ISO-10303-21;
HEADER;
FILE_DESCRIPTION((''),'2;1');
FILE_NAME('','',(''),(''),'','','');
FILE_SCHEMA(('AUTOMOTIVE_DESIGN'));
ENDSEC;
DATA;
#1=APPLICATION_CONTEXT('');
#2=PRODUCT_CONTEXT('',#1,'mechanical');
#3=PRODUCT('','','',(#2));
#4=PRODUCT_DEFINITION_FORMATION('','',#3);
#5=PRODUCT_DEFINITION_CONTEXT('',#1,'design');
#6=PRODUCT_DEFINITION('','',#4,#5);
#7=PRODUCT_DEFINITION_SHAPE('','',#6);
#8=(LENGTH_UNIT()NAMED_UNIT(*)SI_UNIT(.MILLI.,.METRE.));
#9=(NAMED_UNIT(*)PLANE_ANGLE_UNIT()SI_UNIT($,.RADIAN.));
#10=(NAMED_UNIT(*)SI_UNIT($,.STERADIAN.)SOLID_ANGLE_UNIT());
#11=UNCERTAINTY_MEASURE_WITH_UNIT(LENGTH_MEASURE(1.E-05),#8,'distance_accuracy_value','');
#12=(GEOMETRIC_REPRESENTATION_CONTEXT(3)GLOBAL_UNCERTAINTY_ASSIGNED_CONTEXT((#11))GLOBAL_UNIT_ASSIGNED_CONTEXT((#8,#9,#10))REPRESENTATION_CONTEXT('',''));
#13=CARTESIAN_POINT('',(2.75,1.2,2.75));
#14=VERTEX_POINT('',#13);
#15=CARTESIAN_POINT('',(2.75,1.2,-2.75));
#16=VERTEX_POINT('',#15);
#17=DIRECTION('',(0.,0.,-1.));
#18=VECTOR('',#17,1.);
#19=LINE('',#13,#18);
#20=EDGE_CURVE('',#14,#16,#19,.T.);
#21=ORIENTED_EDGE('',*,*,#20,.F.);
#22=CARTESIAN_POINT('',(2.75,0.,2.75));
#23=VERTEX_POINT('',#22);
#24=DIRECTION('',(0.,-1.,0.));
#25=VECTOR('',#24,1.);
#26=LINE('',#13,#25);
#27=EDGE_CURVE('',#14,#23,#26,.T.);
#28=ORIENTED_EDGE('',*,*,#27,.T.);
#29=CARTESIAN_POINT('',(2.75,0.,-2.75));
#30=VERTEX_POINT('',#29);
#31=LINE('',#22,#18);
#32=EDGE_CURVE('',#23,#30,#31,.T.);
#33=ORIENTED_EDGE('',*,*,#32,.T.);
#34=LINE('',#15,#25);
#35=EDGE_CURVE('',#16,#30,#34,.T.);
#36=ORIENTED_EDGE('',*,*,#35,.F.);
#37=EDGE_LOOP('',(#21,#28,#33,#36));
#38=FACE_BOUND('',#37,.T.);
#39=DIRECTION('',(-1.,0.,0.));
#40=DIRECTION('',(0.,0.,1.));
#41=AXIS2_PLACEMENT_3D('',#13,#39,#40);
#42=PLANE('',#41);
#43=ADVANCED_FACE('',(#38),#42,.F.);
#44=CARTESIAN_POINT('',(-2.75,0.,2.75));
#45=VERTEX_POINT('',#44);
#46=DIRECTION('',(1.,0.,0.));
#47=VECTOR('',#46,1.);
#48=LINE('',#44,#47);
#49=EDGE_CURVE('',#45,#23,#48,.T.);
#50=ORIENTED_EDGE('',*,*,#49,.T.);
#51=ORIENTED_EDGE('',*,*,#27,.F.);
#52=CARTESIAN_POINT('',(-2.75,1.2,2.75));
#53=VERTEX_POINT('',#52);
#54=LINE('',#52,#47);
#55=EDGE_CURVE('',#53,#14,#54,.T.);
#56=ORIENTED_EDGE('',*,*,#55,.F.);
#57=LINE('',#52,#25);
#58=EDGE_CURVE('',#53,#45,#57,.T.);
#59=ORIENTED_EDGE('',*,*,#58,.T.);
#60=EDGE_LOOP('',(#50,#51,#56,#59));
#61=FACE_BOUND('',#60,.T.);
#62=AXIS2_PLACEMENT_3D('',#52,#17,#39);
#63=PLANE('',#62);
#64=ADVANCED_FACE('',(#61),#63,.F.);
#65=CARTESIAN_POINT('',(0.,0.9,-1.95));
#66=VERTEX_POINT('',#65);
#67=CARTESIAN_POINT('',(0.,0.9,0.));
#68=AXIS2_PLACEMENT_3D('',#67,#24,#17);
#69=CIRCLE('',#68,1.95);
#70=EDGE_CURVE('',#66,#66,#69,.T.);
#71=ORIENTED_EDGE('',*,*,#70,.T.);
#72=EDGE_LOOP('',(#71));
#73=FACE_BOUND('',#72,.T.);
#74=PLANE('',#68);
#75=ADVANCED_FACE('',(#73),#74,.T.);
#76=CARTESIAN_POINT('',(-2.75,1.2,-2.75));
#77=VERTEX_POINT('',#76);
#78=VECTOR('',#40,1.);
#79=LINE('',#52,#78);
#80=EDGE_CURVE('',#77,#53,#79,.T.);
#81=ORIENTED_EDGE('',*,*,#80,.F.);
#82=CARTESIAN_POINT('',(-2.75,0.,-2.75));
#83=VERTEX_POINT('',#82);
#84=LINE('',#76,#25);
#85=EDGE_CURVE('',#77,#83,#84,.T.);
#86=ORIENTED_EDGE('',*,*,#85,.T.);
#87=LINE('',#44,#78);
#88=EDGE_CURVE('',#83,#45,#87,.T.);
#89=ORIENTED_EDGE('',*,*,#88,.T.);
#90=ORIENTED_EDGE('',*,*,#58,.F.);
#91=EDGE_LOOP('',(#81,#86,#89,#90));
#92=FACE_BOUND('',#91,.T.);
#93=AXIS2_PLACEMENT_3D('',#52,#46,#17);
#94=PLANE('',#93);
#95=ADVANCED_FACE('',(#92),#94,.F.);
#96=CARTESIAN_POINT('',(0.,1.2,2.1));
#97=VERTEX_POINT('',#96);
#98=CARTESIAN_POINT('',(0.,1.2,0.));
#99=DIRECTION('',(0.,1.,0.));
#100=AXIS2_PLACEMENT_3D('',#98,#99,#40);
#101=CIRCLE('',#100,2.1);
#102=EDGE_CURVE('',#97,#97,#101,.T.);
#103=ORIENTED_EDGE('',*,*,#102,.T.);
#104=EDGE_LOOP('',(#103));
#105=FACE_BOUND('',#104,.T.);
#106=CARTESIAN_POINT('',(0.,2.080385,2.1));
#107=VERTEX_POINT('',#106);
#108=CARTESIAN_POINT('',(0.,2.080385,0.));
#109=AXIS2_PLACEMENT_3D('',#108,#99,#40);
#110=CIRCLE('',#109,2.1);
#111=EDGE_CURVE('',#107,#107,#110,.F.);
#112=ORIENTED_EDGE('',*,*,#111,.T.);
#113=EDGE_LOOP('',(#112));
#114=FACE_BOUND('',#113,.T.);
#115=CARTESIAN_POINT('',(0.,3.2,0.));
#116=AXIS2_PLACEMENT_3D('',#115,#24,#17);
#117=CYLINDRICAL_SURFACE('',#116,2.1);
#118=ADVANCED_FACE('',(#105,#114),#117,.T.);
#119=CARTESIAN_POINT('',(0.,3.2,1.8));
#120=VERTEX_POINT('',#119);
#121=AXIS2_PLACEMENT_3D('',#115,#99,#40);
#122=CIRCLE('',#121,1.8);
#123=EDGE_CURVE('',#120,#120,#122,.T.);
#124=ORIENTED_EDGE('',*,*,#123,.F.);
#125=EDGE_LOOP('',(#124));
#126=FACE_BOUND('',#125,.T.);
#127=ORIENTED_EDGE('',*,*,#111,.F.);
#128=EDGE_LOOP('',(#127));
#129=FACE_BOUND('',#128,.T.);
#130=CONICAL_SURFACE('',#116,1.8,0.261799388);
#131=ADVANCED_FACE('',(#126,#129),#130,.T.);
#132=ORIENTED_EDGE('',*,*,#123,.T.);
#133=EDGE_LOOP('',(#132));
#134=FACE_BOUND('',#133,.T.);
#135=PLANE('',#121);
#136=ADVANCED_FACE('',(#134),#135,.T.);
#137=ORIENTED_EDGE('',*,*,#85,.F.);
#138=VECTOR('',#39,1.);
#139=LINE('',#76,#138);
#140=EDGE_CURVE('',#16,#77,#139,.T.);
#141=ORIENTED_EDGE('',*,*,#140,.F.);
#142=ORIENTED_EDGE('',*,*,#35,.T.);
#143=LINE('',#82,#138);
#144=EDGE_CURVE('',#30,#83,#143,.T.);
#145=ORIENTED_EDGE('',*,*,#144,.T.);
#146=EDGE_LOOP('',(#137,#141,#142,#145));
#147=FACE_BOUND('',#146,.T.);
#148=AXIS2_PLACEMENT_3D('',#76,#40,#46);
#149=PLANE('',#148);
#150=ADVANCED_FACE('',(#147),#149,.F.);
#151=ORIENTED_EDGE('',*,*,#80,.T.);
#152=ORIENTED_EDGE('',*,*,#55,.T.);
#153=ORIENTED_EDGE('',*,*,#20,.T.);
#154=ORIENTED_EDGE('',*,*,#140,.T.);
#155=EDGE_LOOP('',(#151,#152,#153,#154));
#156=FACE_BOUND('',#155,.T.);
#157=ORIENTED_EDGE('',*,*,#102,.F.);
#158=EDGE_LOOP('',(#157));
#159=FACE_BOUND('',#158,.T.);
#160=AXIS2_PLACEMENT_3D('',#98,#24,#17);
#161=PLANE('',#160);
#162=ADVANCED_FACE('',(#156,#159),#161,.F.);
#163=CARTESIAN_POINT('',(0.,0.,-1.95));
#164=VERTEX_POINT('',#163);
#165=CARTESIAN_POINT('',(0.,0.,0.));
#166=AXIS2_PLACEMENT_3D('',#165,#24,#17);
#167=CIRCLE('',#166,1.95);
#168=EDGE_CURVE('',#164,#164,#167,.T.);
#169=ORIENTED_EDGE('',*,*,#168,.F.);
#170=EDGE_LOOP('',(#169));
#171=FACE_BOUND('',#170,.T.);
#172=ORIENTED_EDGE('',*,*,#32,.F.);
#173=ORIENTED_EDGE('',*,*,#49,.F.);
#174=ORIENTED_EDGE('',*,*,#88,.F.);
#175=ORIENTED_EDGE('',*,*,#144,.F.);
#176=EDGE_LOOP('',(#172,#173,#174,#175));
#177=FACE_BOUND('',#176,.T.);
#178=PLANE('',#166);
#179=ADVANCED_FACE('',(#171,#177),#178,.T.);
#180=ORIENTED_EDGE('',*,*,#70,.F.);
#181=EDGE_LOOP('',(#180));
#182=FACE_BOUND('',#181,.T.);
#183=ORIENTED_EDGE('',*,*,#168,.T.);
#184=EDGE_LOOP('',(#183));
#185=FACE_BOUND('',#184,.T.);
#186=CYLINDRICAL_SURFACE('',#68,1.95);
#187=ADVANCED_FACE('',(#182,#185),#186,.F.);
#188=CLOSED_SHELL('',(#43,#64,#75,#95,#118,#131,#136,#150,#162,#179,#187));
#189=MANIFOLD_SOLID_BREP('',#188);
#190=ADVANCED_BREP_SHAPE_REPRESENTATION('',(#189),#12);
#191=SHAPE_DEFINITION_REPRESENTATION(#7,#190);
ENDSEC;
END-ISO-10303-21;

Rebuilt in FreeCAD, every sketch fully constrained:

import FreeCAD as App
import Part
import Sketcher
from FreeCAD import Vector
Q = App.Units.Quantity


def edges_at(feature, points):
    """Names of the edges that pass closest to the given points."""
    edges = feature.Shape.Edges
    near = lambda p: min(range(len(edges)), key=lambda i: edges[i].distToShape(Part.Vertex(*p))[0])
    return sorted({f"Edge{near(p) + 1}" for p in points})

doc = App.newDocument("Part")
body = doc.addObject("PartDesign::Body", "Body")

sketch1 = doc.addObject("Sketcher::SketchObject", "Sketch")
body.addObject(sketch1)
sketch1.AttachmentSupport = (doc.XZ_Plane, [""])
sketch1.MapMode = "FlatFace"
sketch1.addGeometry([
    Part.LineSegment(Vector(-3, -3, 0), Vector(-3, 3, 0)),
    Part.LineSegment(Vector(-3, 3, 0), Vector(3, 3, 0)),
    Part.LineSegment(Vector(3, 3, 0), Vector(3, -3, 0)),
    Part.LineSegment(Vector(3, -3, 0), Vector(-3, -3, 0)),
], False)
sketch1.addConstraint([
    Sketcher.Constraint("Coincident", 0, 2, 1, 1),
    Sketcher.Constraint("Coincident", 1, 2, 2, 1),
    Sketcher.Constraint("Coincident", 2, 2, 3, 1),
    Sketcher.Constraint("Coincident", 3, 2, 0, 1),
    Sketcher.Constraint("Vertical", 0),
    Sketcher.Constraint("Horizontal", 1),
    Sketcher.Constraint("Vertical", 2),
    Sketcher.Constraint("Horizontal", 3),
    Sketcher.Constraint("Symmetric", 0, 2, 2, 2, -1, 1),
    Sketcher.Constraint("Equal", 3, 0),
    Sketcher.Constraint("DistanceX", 1, 1, 1, 2, Q("5.5 mm")),
])
pad1 = doc.addObject("PartDesign::Pad", "Pad")
body.addObject(pad1)
pad1.Profile = sketch1
pad1.Length = 1.2
pad1.Reversed = True

sketch2 = doc.addObject("Sketcher::SketchObject", "Sketch001")
body.addObject(sketch2)
sketch2.AttachmentSupport = (doc.XZ_Plane, [""])
sketch2.MapMode = "FlatFace"
sketch2.AttachmentOffset = App.Placement(Vector(0, 0, -1.2), App.Rotation())
sketch2.addGeometry(Part.Circle(Vector(0, 0, 0), Vector(0, 0, 1), 2.1), False)
sketch2.addConstraint([
    Sketcher.Constraint("Coincident", 0, 3, -1, 1),
    Sketcher.Constraint("Diameter", 0, Q("4.2 mm")),
])
pad2 = doc.addObject("PartDesign::Pad", "Pad001")
body.addObject(pad2)
pad2.Profile = sketch2
pad2.Length = 2
pad2.Reversed = True

sketch3 = doc.addObject("Sketcher::SketchObject", "Sketch002")
body.addObject(sketch3)
sketch3.AttachmentSupport = (doc.XZ_Plane, [""])
sketch3.MapMode = "FlatFace"
sketch3.addGeometry(Part.Circle(Vector(0, 0, 0), Vector(0, 0, 1), 1.9), False)
sketch3.addConstraint([
    Sketcher.Constraint("Coincident", 0, 3, -1, 1),
    Sketcher.Constraint("Diameter", 0, Q("3.9 mm")),
])
pocket1 = doc.addObject("PartDesign::Pocket", "Pocket")
body.addObject(pocket1)
pocket1.Profile = sketch3
pocket1.Length = 0.9
doc.recompute()

chamfer = doc.addObject("PartDesign::Chamfer", "Chamfer")
body.addObject(chamfer)
chamfer.Base = (pocket1, edges_at(pocket1, [(0, 3.2, -2.1)]))
chamfer.ChamferType = "Two distances"
chamfer.Size = 0.3
chamfer.Size2 = 1.119615
chamfer.FlipDirection = True

doc.recompute()
